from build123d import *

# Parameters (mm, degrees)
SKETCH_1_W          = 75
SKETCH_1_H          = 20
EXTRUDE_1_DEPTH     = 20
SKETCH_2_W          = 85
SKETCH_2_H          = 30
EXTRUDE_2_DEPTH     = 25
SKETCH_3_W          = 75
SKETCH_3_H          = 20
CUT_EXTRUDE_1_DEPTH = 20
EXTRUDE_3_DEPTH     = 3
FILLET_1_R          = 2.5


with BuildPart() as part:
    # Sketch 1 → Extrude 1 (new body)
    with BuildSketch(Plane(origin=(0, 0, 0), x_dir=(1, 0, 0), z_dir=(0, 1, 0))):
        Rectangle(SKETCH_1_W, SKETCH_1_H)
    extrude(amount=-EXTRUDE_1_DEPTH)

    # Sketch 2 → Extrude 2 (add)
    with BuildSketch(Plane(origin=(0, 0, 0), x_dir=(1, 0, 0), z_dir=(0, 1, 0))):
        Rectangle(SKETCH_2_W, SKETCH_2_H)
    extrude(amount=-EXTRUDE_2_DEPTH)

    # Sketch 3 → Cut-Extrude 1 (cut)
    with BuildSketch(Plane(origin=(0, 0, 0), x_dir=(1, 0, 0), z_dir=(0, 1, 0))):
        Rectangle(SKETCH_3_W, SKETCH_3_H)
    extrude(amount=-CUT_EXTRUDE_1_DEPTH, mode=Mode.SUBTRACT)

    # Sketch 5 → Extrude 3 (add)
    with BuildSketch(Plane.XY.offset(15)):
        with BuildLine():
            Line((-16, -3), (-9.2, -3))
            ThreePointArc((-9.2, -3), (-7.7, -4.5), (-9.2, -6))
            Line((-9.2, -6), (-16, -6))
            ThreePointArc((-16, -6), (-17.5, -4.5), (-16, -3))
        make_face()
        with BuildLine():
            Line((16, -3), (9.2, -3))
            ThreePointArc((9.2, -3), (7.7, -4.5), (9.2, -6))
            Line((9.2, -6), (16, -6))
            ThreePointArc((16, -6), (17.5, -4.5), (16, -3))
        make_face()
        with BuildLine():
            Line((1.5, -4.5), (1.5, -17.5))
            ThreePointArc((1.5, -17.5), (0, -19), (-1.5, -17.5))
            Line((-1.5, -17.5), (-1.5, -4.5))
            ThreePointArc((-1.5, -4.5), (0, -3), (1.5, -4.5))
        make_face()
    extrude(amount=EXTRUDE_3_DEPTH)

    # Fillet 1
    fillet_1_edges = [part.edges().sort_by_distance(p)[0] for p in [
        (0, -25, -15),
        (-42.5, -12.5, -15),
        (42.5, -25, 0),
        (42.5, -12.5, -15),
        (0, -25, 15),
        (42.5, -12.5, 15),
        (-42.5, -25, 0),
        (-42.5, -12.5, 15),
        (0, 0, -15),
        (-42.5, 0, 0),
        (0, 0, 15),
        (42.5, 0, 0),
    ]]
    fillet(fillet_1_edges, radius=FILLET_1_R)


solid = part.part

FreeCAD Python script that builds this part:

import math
import FreeCAD as App
import Part
import Sketcher

V = App.Vector


def edges_at(feature, points):
    """Names of the edges that pass closest to the given points."""
    edges = feature.Shape.Edges
    near = lambda p: min(range(len(edges)), key=lambda i: edges[i].distToShape(Part.Vertex(*p))[0])
    return sorted({f"Edge{near(p) + 1}" for p in points})

doc = App.newDocument("Part")
params = doc.addObject("Spreadsheet::Sheet", "Params")
for row, (alias, value) in enumerate([
    ("sketch1_width", "75 mm"),
    ("sketch1_height", "20 mm"),
    ("pad1_length", "20 mm"),
    ("sketch2_width", "85 mm"),
    ("sketch2_height", "30 mm"),
    ("pad2_length", "25 mm"),
    ("sketch3_width", "75 mm"),
    ("sketch3_height", "20 mm"),
    ("pocket1_length", "20 mm"),
    ("sketch4_radius", "1.5 mm"),
    ("sketch4_height", "13 mm"),
    ("sketch4_width", "6.8 mm"),
    ("pad3_length", "3 mm"),
    ("fillet_radius", "2.5 mm"),
], start=1):
    params.set(f"A{row}", alias)
    params.set(f"B{row}", "=" + value)
    params.setAlias(f"B{row}", alias)

body = doc.addObject("PartDesign::Body", "Body")

# Sketch on XZ plane
sketch1 = doc.addObject("Sketcher::SketchObject", "Sketch")
body.addObject(sketch1)
sketch1.AttachmentSupport = (doc.XZ_Plane, [""])
sketch1.MapMode = "FlatFace"
sketch1.addGeometry(Part.LineSegment(V(-38, -10, 0), V(-38, 10, 0)), False)
sketch1.addGeometry(Part.LineSegment(V(-38, 10, 0), V(38, 10, 0)), False)
sketch1.addGeometry(Part.LineSegment(V(38, 10, 0), V(38, -10, 0)), False)
sketch1.addGeometry(Part.LineSegment(V(38, -10, 0), V(-38, -10, 0)), False)
sketch1.addConstraint(Sketcher.Constraint("Coincident", 0, 2, 1, 1))
sketch1.addConstraint(Sketcher.Constraint("Coincident", 1, 2, 2, 1))
sketch1.addConstraint(Sketcher.Constraint("Coincident", 2, 2, 3, 1))
sketch1.addConstraint(Sketcher.Constraint("Coincident", 3, 2, 0, 1))
sketch1.addConstraint(Sketcher.Constraint("Vertical", 0))
sketch1.addConstraint(Sketcher.Constraint("Horizontal", 1))
sketch1.addConstraint(Sketcher.Constraint("Vertical", 2))
sketch1.addConstraint(Sketcher.Constraint("Horizontal", 3))
sketch1.addConstraint(Sketcher.Constraint("Symmetric", 0, 2, 2, 2, -1, 1))
sketch1.addConstraint(Sketcher.Constraint("DistanceX", 1, 1, 1, 2, 75.0))
sketch1.addConstraint(Sketcher.Constraint("DistanceY", 0, 1, 0, 2, 20.0))
sketch1.setExpression("Constraints[9]", "Params.sketch1_width")
sketch1.setExpression("Constraints[10]", "Params.sketch1_height")
pad1 = doc.addObject("PartDesign::Pad", "Pad")
body.addObject(pad1)
pad1.Profile = sketch1
pad1.setExpression("Length", "Params.pad1_length")

# Sketch on XZ plane
sketch2 = doc.addObject("Sketcher::SketchObject", "Sketch001")
body.addObject(sketch2)
sketch2.AttachmentSupport = (doc.XZ_Plane, [""])
sketch2.MapMode = "FlatFace"
sketch2.addGeometry(Part.LineSegment(V(-42, -15, 0), V(-42, 15, 0)), False)
sketch2.addGeometry(Part.LineSegment(V(-42, 15, 0), V(42, 15, 0)), False)
sketch2.addGeometry(Part.LineSegment(V(42, 15, 0), V(42, -15, 0)), False)
sketch2.addGeometry(Part.LineSegment(V(42, -15, 0), V(-42, -15, 0)), False)
sketch2.addConstraint(Sketcher.Constraint("Coincident", 0, 2, 1, 1))
sketch2.addConstraint(Sketcher.Constraint("Coincident", 1, 2, 2, 1))
sketch2.addConstraint(Sketcher.Constraint("Coincident", 2, 2, 3, 1))
sketch2.addConstraint(Sketcher.Constraint("Coincident", 3, 2, 0, 1))
sketch2.addConstraint(Sketcher.Constraint("Vertical", 0))
sketch2.addConstraint(Sketcher.Constraint("Horizontal", 1))
sketch2.addConstraint(Sketcher.Constraint("Vertical", 2))
sketch2.addConstraint(Sketcher.Constraint("Horizontal", 3))
sketch2.addConstraint(Sketcher.Constraint("Symmetric", 0, 2, 2, 2, -1, 1))
sketch2.addConstraint(Sketcher.Constraint("DistanceX", 1, 1, 1, 2, 85.0))
sketch2.addConstraint(Sketcher.Constraint("DistanceY", 0, 1, 0, 2, 30.0))
sketch2.setExpression("Constraints[9]", "Params.sketch2_width")
sketch2.setExpression("Constraints[10]", "Params.sketch2_height")
pad2 = doc.addObject("PartDesign::Pad", "Pad001")
body.addObject(pad2)
pad2.Profile = sketch2
pad2.setExpression("Length", "Params.pad2_length")

# Sketch on XZ plane
sketch3 = doc.addObject("Sketcher::SketchObject", "Sketch002")
body.addObject(sketch3)
sketch3.AttachmentSupport = (doc.XZ_Plane, [""])
sketch3.MapMode = "FlatFace"
sketch3.addGeometry(Part.LineSegment(V(-38, -10, 0), V(-38, 10, 0)), False)
sketch3.addGeometry(Part.LineSegment(V(-38, 10, 0), V(38, 10, 0)), False)
sketch3.addGeometry(Part.LineSegment(V(38, 10, 0), V(38, -10, 0)), False)
sketch3.addGeometry(Part.LineSegment(V(38, -10, 0), V(-38, -10, 0)), False)
sketch3.addConstraint(Sketcher.Constraint("Coincident", 0, 2, 1, 1))
sketch3.addConstraint(Sketcher.Constraint("Coincident", 1, 2, 2, 1))
sketch3.addConstraint(Sketcher.Constraint("Coincident", 2, 2, 3, 1))
sketch3.addConstraint(Sketcher.Constraint("Coincident", 3, 2, 0, 1))
sketch3.addConstraint(Sketcher.Constraint("Vertical", 0))
sketch3.addConstraint(Sketcher.Constraint("Horizontal", 1))
sketch3.addConstraint(Sketcher.Constraint("Vertical", 2))
sketch3.addConstraint(Sketcher.Constraint("Horizontal", 3))
sketch3.addConstraint(Sketcher.Constraint("Symmetric", 0, 2, 2, 2, -1, 1))
sketch3.addConstraint(Sketcher.Constraint("DistanceX", 1, 1, 1, 2, 75.0))
sketch3.addConstraint(Sketcher.Constraint("DistanceY", 0, 1, 0, 2, 20.0))
sketch3.setExpression("Constraints[9]", "Params.sketch3_width")
sketch3.setExpression("Constraints[10]", "Params.sketch3_height")
pocket1 = doc.addObject("PartDesign::Pocket", "Pocket")
body.addObject(pocket1)
pocket1.Profile = sketch3
pocket1.setExpression("Length", "Params.pocket1_length")
pocket1.Reversed = True

# Sketch on XY plane
sketch4 = doc.addObject("Sketcher::SketchObject", "Sketch003")
body.addObject(sketch4)
sketch4.AttachmentSupport = (doc.XY_Plane, [""])
sketch4.MapMode = "FlatFace"
sketch4.AttachmentOffset = App.Placement(V(0, 0, 15), App.Rotation())
sketch4.addGeometry(Part.LineSegment(V(-9.2, -3, 0), V(-16, -3, 0)), False)
sketch4.addGeometry(Part.ArcOfCircle(Part.Circle(V(-16, -4.5, 0), V(0, 0, 1), 1.5), math.radians(90), math.radians(270)), False)
sketch4.addGeometry(Part.LineSegment(V(-16, -6, 0), V(-9.2, -6, 0)), False)
sketch4.addGeometry(Part.ArcOfCircle(Part.Circle(V(-9.2, -4.5, 0), V(0, 0, 1), 1.5), math.radians(-90), math.radians(90)), False)
sketch4.addGeometry(Part.LineSegment(V(16, -3, 0), V(9.2, -3, 0)), False)
sketch4.addGeometry(Part.ArcOfCircle(Part.Circle(V(9.2, -4.5, 0), V(0, 0, 1), 1.5), math.radians(90), math.radians(270)), False)
sketch4.addGeometry(Part.LineSegment(V(9.2, -6, 0), V(16, -6, 0)), False)
sketch4.addGeometry(Part.ArcOfCircle(Part.Circle(V(16, -4.5, 0), V(0, 0, 1), 1.5), math.radians(-90), math.radians(90)), False)
sketch4.addGeometry(Part.LineSegment(V(1.5, -17.5, 0), V(1.5, -4.5, 0)), False)
sketch4.addGeometry(Part.ArcOfCircle(Part.Circle(V(0, -4.5, 0), V(0, 0, 1), 1.5), math.radians(0), math.radians(180)), False)
sketch4.addGeometry(Part.LineSegment(V(-1.5, -4.5, 0), V(-1.5, -17.5, 0)), False)
sketch4.addGeometry(Part.ArcOfCircle(Part.Circle(V(0, -17.5, 0), V(0, 0, 1), 1.5), math.radians(180), math.radians(360)), False)
sketch4.addConstraint(Sketcher.Constraint("Tangent", 0, 2, 1, 1))
sketch4.addConstraint(Sketcher.Constraint("Tangent", 1, 2, 2, 1))
sketch4.addConstraint(Sketcher.Constraint("Tangent", 2, 2, 3, 1))
sketch4.addConstraint(Sketcher.Constraint("Tangent", 3, 2, 0, 1))
sketch4.addConstraint(Sketcher.Constraint("Tangent", 4, 2, 5, 1))
sketch4.addConstraint(Sketcher.Constraint("Tangent", 5, 2, 6, 1))
sketch4.addConstraint(Sketcher.Constraint("Tangent", 6, 2, 7, 1))
sketch4.addConstraint(Sketcher.Constraint("Tangent", 7, 2, 4, 1))
sketch4.addConstraint(Sketcher.Constraint("Tangent", 8, 2, 9, 1))
sketch4.addConstraint(Sketcher.Constraint("Tangent", 9, 2, 10, 1))
sketch4.addConstraint(Sketcher.Constraint("Tangent", 10, 2, 11, 1))
sketch4.addConstraint(Sketcher.Constraint("Tangent", 11, 2, 8, 1))
sketch4.addConstraint(Sketcher.Constraint("Horizontal", 0))
sketch4.addConstraint(Sketcher.Constraint("Horizontal", 2))
sketch4.addConstraint(Sketcher.Constraint("Horizontal", 4))
sketch4.addConstraint(Sketcher.Constraint("Horizontal", 6))
sketch4.addConstraint(Sketcher.Constraint("Vertical", 8))
sketch4.addConstraint(Sketcher.Constraint("Vertical", 10))
sketch4.addConstraint(Sketcher.Constraint("Equal", 3, 5))
sketch4.addConstraint(Sketcher.Constraint("Equal", 7, 9))
sketch4.addConstraint(Sketcher.Constraint("Symmetric", 3, 3, 5, 3, -2))
sketch4.addConstraint(Sketcher.Constraint("PointOnObject", 9, 3, -2))
sketch4.addConstraint(Sketcher.Constraint("Horizontal", 7, 3, 9, 3))
sketch4.addConstraint(Sketcher.Constraint("Equal", 2, 4))
sketch4.addConstraint(Sketcher.Constraint("Radius", 1, 1.5))
sketch4.addConstraint(Sketcher.Constraint("DistanceY", 8, 1, 8, 2, 13.0))
sketch4.addConstraint(Sketcher.Constraint("DistanceX", 0, 2, 0, 1, 6.8))
sketch4.addConstraint(Sketcher.Constraint("DistanceX", 1, 3, -1, 1, 16.0))
sketch4.addConstraint(Sketcher.Constraint("DistanceY", 0, 2, -1, 1, 3.0))
sketch4.setExpression("Constraints[24]", "Params.sketch4_radius")
sketch4.setExpression("Constraints[25]", "Params.sketch4_height")
sketch4.setExpression("Constraints[26]", "Params.sketch4_width")
pad3 = doc.addObject("PartDesign::Pad", "Pad002")
body.addObject(pad3)
pad3.Profile = sketch4
pad3.setExpression("Length", "Params.pad3_length")
doc.recompute()

fillet = doc.addObject("PartDesign::Fillet", "Fillet")
body.addObject(fillet)
fillet.Base = (pad3, edges_at(pad3, [
    (0, -25, -15),
    (-42.5, -12.5, -15),
    (42.5, -25, 0),
    (42.5, -12.5, -15),
    (0, -25, 15),
    (42.5, -12.5, 15),
    (-42.5, -25, 0),
    (-42.5, -12.5, 15),
    (0, 0, -15),
    (-42.5, 0, 0),
    (0, 0, 15),
    (42.5, 0, 0),
]))
fillet.setExpression("Radius", "Params.fillet_radius")

doc.recompute()
